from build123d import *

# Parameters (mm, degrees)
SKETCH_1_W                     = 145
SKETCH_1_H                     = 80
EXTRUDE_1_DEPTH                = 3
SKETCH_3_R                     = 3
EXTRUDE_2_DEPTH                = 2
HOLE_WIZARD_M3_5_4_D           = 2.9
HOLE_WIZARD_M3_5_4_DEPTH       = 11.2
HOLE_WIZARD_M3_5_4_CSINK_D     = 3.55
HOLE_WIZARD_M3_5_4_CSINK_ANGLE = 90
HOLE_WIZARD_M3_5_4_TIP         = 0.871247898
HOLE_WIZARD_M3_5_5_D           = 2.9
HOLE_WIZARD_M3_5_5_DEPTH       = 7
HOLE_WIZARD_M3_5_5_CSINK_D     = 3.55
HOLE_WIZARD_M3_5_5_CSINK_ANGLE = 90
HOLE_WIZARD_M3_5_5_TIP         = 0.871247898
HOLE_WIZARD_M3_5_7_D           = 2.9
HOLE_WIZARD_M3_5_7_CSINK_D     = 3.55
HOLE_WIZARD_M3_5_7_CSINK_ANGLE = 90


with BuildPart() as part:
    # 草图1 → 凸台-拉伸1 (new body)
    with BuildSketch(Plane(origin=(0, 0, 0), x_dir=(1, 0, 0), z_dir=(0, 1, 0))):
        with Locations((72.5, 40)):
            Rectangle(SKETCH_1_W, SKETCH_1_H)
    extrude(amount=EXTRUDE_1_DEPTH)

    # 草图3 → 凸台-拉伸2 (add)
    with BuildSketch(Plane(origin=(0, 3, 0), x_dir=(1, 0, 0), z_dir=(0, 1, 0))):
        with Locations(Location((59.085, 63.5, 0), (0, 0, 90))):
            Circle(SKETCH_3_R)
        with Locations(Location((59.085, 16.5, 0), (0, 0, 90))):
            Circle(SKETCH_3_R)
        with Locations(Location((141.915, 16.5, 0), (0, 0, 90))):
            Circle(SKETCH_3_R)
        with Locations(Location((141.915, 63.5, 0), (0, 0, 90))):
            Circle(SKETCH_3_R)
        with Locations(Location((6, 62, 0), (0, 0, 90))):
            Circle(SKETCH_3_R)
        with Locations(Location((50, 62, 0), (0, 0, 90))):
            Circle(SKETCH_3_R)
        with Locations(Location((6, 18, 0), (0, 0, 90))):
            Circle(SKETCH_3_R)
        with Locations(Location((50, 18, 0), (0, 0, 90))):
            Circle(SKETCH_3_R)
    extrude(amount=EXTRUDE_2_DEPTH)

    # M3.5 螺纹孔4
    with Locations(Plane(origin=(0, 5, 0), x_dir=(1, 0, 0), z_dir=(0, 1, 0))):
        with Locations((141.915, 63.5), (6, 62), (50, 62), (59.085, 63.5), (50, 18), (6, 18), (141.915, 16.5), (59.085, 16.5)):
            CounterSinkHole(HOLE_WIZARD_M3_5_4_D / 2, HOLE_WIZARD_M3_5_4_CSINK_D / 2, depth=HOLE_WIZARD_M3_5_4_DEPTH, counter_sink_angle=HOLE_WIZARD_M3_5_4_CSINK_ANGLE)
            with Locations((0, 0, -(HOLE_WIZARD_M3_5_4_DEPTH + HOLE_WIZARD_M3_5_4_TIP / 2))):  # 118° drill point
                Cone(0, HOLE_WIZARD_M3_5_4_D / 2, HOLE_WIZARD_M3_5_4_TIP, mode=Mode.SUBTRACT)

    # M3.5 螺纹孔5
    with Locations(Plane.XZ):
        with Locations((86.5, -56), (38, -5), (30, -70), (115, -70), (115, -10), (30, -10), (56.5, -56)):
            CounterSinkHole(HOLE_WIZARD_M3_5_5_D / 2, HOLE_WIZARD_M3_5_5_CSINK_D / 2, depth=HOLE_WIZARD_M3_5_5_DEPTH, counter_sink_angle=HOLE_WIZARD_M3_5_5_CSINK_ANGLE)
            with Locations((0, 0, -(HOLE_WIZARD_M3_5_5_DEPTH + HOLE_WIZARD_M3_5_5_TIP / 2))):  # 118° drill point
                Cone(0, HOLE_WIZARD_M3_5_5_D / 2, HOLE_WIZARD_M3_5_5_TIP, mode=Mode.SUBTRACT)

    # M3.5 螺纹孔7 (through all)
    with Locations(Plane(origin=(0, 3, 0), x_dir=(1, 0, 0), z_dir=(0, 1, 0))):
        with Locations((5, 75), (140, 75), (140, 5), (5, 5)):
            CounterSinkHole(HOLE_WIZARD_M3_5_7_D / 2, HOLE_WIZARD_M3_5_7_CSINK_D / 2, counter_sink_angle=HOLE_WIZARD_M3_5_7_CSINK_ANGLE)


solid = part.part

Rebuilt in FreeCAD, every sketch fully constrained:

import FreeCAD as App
import Part
import Sketcher

V = App.Vector


def add_polygon(sketch, points):
    """Adds a closed chain of lines whose ends are joined by coincident constraints."""
    first, n = sketch.GeometryCount, len(points)
    for a, b in zip(points, points[1:] + points[:1]):
        sketch.addGeometry(Part.LineSegment(App.Vector(*a, 0), App.Vector(*b, 0)), False)
    for i in range(n):
        sketch.addConstraint(Sketcher.Constraint("Coincident", first + i, 2, first + (i + 1) % n, 1))

doc = App.newDocument("Part")
params = doc.addObject("Spreadsheet::Sheet", "Params")
for row, (alias, value) in enumerate([
    ("sketch1_width", "145 mm"),
    ("sketch1_height", "80 mm"),
    ("pad1_length", "3 mm"),
    ("sketch2_diameter", "6 mm"),
    ("pad2_length", "2 mm"),
    ("sketch3_diameter", "2.9 mm"),
    ("hole_diameter", "2.9 mm"),
    ("hole_depth", "11.2 mm"),
    ("hole_csink_diameter", "3.55 mm"),
    ("sketch4_diameter", "2.9 mm"),
    ("hole2_diameter", "2.9 mm"),
    ("hole2_depth", "7 mm"),
    ("hole2_csink_diameter", "3.55 mm"),
    ("sketch5_diameter", "2.9 mm"),
    ("hole3_diameter", "2.9 mm"),
    ("hole3_csink_diameter", "3.55 mm"),
], start=1):
    params.set(f"A{row}", alias)
    params.set(f"B{row}", "=" + value)
    params.setAlias(f"B{row}", alias)

body = doc.addObject("PartDesign::Body", "Body")

# Sketch on XZ plane
sketch1 = doc.addObject("Sketcher::SketchObject", "Sketch")
body.addObject(sketch1)
sketch1.AttachmentSupport = (doc.XZ_Plane, [""])
sketch1.MapMode = "FlatFace"
add_polygon(sketch1, [(0, -80), (0, 0), (145, 0), (145, -80)])  # lines 0-3
sketch1.addConstraint([
    Sketcher.Constraint("Vertical", 0),
    Sketcher.Constraint("Horizontal", 1),
    Sketcher.Constraint("Vertical", 2),
    Sketcher.Constraint("Horizontal", 3),
    Sketcher.Constraint("Coincident", 0, 2, -1, 1),
    Sketcher.Constraint("DistanceX", 1, 1, 1, 2, 145.0),
    Sketcher.Constraint("DistanceY", 0, 1, 0, 2, 80.0),
])
sketch1.setExpression("Constraints[9]", "Params.sketch1_width")
sketch1.setExpression("Constraints[10]", "Params.sketch1_height")
pad1 = doc.addObject("PartDesign::Pad", "Pad")
body.addObject(pad1)
pad1.Profile = sketch1
pad1.setExpression("Length", "Params.pad1_length")
pad1.Reversed = True

# Sketch on XZ plane
sketch2 = doc.addObject("Sketcher::SketchObject", "Sketch001")
body.addObject(sketch2)
sketch2.AttachmentSupport = (doc.XZ_Plane, [""])
sketch2.MapMode = "FlatFace"
sketch2.AttachmentOffset = App.Placement(V(0, 0, -3), App.Rotation())
sketch2.addGeometry([
    Part.Circle(V(59.1, -63.5, 0), V(0, 0, 1), 3),  # 0
    Part.Circle(V(59.1, -16.5, 0), V(0, 0, 1), 3),  # 1
    Part.Circle(V(141.9, -16.5, 0), V(0, 0, 1), 3),  # 2
    Part.Circle(V(141.9, -63.5, 0), V(0, 0, 1), 3),  # 3
    Part.Circle(V(6, -62, 0), V(0, 0, 1), 3),  # 4
    Part.Circle(V(50, -62, 0), V(0, 0, 1), 3),  # 5
    Part.Circle(V(6, -18, 0), V(0, 0, 1), 3),  # 6
    Part.Circle(V(50, -18, 0), V(0, 0, 1), 3),  # 7
], False)
sketch2.addConstraint([
    Sketcher.Constraint("Equal", 0, 1),
    Sketcher.Constraint("Equal", 1, 2),
    Sketcher.Constraint("Equal", 2, 3),
    Sketcher.Constraint("Equal", 3, 4),
    Sketcher.Constraint("Equal", 4, 5),
    Sketcher.Constraint("Equal", 5, 6),
    Sketcher.Constraint("Equal", 6, 7),
    Sketcher.Constraint("Horizontal", 1, 3, 2, 3),
    Sketcher.Constraint("Horizontal", 0, 3, 3, 3),
    Sketcher.Constraint("Horizontal", 4, 3, 5, 3),
    Sketcher.Constraint("Horizontal", 6, 3, 7, 3),
    Sketcher.Constraint("Vertical", 0, 3, 1, 3),
    Sketcher.Constraint("Vertical", 2, 3, 3, 3),
    Sketcher.Constraint("Vertical", 4, 3, 6, 3),
    Sketcher.Constraint("Vertical", 5, 3, 7, 3),
    Sketcher.Constraint("Diameter", 0, 6.0),
    Sketcher.Constraint("DistanceX", -1, 1, 4, 3, 6.0),
    Sketcher.Constraint("DistanceY", 4, 3, -1, 1, 62.0),
    Sketcher.Constraint("DistanceX", -1, 1, 5, 3, 50.0),
    Sketcher.Constraint("DistanceY", 6, 3, -1, 1, 18.0),
    Sketcher.Constraint("DistanceY", 0, 3, 1, 3, 47.0),
    Sketcher.Constraint("DistanceY", 0, 3, -1, 1, 63.5),
    Sketcher.Constraint("DistanceX", 1, 3, 2, 3, 82.83),
    Sketcher.Constraint("DistanceX", -1, 1, 0, 3, 59.085),
])
sketch2.setExpression("Constraints[15]", "Params.sketch2_diameter")
pad2 = doc.addObject("PartDesign::Pad", "Pad001")
body.addObject(pad2)
pad2.Profile = sketch2
pad2.setExpression("Length", "Params.pad2_length")
pad2.Reversed = True

# Sketch on XZ plane
sketch3 = doc.addObject("Sketcher::SketchObject", "Sketch002")
body.addObject(sketch3)
sketch3.AttachmentSupport = (doc.XZ_Plane, [""])
sketch3.MapMode = "FlatFace"
sketch3.AttachmentOffset = App.Placement(V(0, 0, -5), App.Rotation())
sketch3.addGeometry([
    Part.Circle(V(141.9, -63.5, 0), V(0, 0, 1), 1.4),  # 0
    Part.Circle(V(6, -62, 0), V(0, 0, 1), 1.4),  # 1
    Part.Circle(V(50, -62, 0), V(0, 0, 1), 1.4),  # 2
    Part.Circle(V(59.1, -63.5, 0), V(0, 0, 1), 1.4),  # 3
    Part.Circle(V(50, -18, 0), V(0, 0, 1), 1.4),  # 4
    Part.Circle(V(6, -18, 0), V(0, 0, 1), 1.4),  # 5
    Part.Circle(V(141.9, -16.5, 0), V(0, 0, 1), 1.4),  # 6
    Part.Circle(V(59.1, -16.5, 0), V(0, 0, 1), 1.4),  # 7
], False)
sketch3.addConstraint([
    Sketcher.Constraint("Equal", 0, 1),
    Sketcher.Constraint("Equal", 1, 2),
    Sketcher.Constraint("Equal", 2, 3),
    Sketcher.Constraint("Equal", 3, 4),
    Sketcher.Constraint("Equal", 4, 5),
    Sketcher.Constraint("Equal", 5, 6),
    Sketcher.Constraint("Equal", 6, 7),
    Sketcher.Constraint("Horizontal", 1, 3, 2, 3),
    Sketcher.Constraint("Horizontal", 0, 3, 3, 3),
    Sketcher.Constraint("Horizontal", 4, 3, 5, 3),
    Sketcher.Constraint("Horizontal", 6, 3, 7, 3),
    Sketcher.Constraint("Vertical", 2, 3, 4, 3),
    Sketcher.Constraint("Vertical", 1, 3, 5, 3),
    Sketcher.Constraint("Vertical", 0, 3, 6, 3),
    Sketcher.Constraint("Vertical", 3, 3, 7, 3),
    Sketcher.Constraint("Diameter", 0, 2.9),
    Sketcher.Constraint("DistanceX", -1, 1, 1, 3, 6.0),
    Sketcher.Constraint("DistanceY", 1, 3, -1, 1, 62.0),
    Sketcher.Constraint("DistanceX", -1, 1, 2, 3, 50.0),
    Sketcher.Constraint("DistanceY", 4, 3, -1, 1, 18.0),
    Sketcher.Constraint("DistanceY", 0, 3, 6, 3, 47.0),
    Sketcher.Constraint("DistanceY", 0, 3, -1, 1, 63.5),
    Sketcher.Constraint("DistanceX", 3, 3, 0, 3, 82.83),
    Sketcher.Constraint("DistanceX", -1, 1, 0, 3, 141.915),
])
sketch3.setExpression("Constraints[15]", "Params.sketch3_diameter")
doc.recompute()
hole = doc.addObject("PartDesign::Hole", "Hole")
body.addObject(hole)
hole.Profile = sketch3
hole.ThreadType = "None"
hole.setExpression("Diameter", "Params.hole_diameter")
hole.DepthType = "Dimension"
hole.setExpression("Depth", "Params.hole_depth")
hole.DrillPoint = "Angled"
hole.DrillPointAngle = 118
hole.HoleCutType = "Countersink"
hole.setExpression("HoleCutDiameter", "Params.hole_csink_diameter")
hole.HoleCutCountersinkAngle = 90
hole.Reversed = True

# Sketch on XZ plane
sketch4 = doc.addObject("Sketcher::SketchObject", "Sketch003")
body.addObject(sketch4)
sketch4.AttachmentSupport = (doc.XZ_Plane, [""])
sketch4.MapMode = "FlatFace"
sketch4.addGeometry([
    Part.Circle(V(86.5, -56, 0), V(0, 0, 1), 1.4),  # 0
    Part.Circle(V(38, -5, 0), V(0, 0, 1), 1.4),  # 1
    Part.Circle(V(30, -70, 0), V(0, 0, 1), 1.4),  # 2
    Part.Circle(V(115, -70, 0), V(0, 0, 1), 1.4),  # 3
    Part.Circle(V(115, -10, 0), V(0, 0, 1), 1.4),  # 4
    Part.Circle(V(30, -10, 0), V(0, 0, 1), 1.4),  # 5
    Part.Circle(V(56.5, -56, 0), V(0, 0, 1), 1.4),  # 6
], False)
sketch4.addConstraint([
    Sketcher.Constraint("Equal", 0, 1),
    Sketcher.Constraint("Equal", 1, 2),
    Sketcher.Constraint("Equal", 2, 3),
    Sketcher.Constraint("Equal", 3, 4),
    Sketcher.Constraint("Equal", 4, 5),
    Sketcher.Constraint("Equal", 5, 6),
    Sketcher.Constraint("Horizontal", 2, 3, 3, 3),
    Sketcher.Constraint("Horizontal", 4, 3, 5, 3),
    Sketcher.Constraint("Horizontal", 0, 3, 6, 3),
    Sketcher.Constraint("Vertical", 3, 3, 4, 3),
    Sketcher.Constraint("Vertical", 2, 3, 5, 3),
    Sketcher.Constraint("Diameter", 0, 2.9),
    Sketcher.Constraint("DistanceY", 0, 3, -1, 1, 56.0),
    Sketcher.Constraint("DistanceX", -1, 1, 1, 3, 38.0),
    Sketcher.Constraint("DistanceY", 1, 3, -1, 1, 5.0),
    Sketcher.Constraint("DistanceX", -1, 1, 2, 3, 30.0),
    Sketcher.Constraint("DistanceY", 2, 3, -1, 1, 70.0),
    Sketcher.Constraint("DistanceX", -1, 1, 3, 3, 115.0),
    Sketcher.Constraint("DistanceY", 4, 3, -1, 1, 10.0),
    Sketcher.Constraint("DistanceX", 6, 3, 0, 3, 30.0),
    Sketcher.Constraint("DistanceX", -1, 1, 0, 3, 86.5),
])
sketch4.setExpression("Constraints[11]", "Params.sketch4_diameter")
doc.recompute()
hole2 = doc.addObject("PartDesign::Hole", "Hole001")
body.addObject(hole2)
hole2.Profile = sketch4
hole2.ThreadType = "None"
hole2.setExpression("Diameter", "Params.hole2_diameter")
hole2.DepthType = "Dimension"
hole2.setExpression("Depth", "Params.hole2_depth")
hole2.DrillPoint = "Angled"
hole2.DrillPointAngle = 118
hole2.HoleCutType = "Countersink"
hole2.setExpression("HoleCutDiameter", "Params.hole2_csink_diameter")
hole2.HoleCutCountersinkAngle = 90

# Sketch on XZ plane
sketch5 = doc.addObject("Sketcher::SketchObject", "Sketch004")
body.addObject(sketch5)
sketch5.AttachmentSupport = (doc.XZ_Plane, [""])
sketch5.MapMode = "FlatFace"
sketch5.AttachmentOffset = App.Placement(V(0, 0, -3), App.Rotation())
sketch5.addGeometry([
    Part.Circle(V(5, -75, 0), V(0, 0, 1), 1.4),
    Part.Circle(V(140, -75, 0), V(0, 0, 1), 1.4),
    Part.Circle(V(140, -5, 0), V(0, 0, 1), 1.4),
    Part.Circle(V(5, -5, 0), V(0, 0, 1), 1.4),
], False)
sketch5.addConstraint([
    Sketcher.Constraint("Equal", 0, 1),
    Sketcher.Constraint("Equal", 1, 2),
    Sketcher.Constraint("Equal", 2, 3),
    Sketcher.Constraint("Horizontal", 0, 3, 1, 3),
    Sketcher.Constraint("Horizontal", 2, 3, 3, 3),
    Sketcher.Constraint("Vertical", 1, 3, 2, 3),
    Sketcher.Constraint("Vertical", 0, 3, 3, 3),
    Sketcher.Constraint("Diameter", 0, 2.9),
    Sketcher.Constraint("DistanceX", -1, 1, 0, 3, 5.0),
    Sketcher.Constraint("DistanceY", 0, 3, -1, 1, 75.0),
    Sketcher.Constraint("DistanceX", -1, 1, 1, 3, 140.0),
    Sketcher.Constraint("DistanceY", 2, 3, -1, 1, 5.0),
])
sketch5.setExpression("Constraints[7]", "Params.sketch5_diameter")
doc.recompute()
hole3 = doc.addObject("PartDesign::Hole", "Hole002")
body.addObject(hole3)
hole3.Profile = sketch5
hole3.ThreadType = "None"
hole3.setExpression("Diameter", "Params.hole3_diameter")
hole3.DepthType = "ThroughAll"
hole3.HoleCutType = "Countersink"
hole3.setExpression("HoleCutDiameter", "Params.hole3_csink_diameter")
hole3.HoleCutCountersinkAngle = 90
hole3.Reversed = True

doc.recompute()
